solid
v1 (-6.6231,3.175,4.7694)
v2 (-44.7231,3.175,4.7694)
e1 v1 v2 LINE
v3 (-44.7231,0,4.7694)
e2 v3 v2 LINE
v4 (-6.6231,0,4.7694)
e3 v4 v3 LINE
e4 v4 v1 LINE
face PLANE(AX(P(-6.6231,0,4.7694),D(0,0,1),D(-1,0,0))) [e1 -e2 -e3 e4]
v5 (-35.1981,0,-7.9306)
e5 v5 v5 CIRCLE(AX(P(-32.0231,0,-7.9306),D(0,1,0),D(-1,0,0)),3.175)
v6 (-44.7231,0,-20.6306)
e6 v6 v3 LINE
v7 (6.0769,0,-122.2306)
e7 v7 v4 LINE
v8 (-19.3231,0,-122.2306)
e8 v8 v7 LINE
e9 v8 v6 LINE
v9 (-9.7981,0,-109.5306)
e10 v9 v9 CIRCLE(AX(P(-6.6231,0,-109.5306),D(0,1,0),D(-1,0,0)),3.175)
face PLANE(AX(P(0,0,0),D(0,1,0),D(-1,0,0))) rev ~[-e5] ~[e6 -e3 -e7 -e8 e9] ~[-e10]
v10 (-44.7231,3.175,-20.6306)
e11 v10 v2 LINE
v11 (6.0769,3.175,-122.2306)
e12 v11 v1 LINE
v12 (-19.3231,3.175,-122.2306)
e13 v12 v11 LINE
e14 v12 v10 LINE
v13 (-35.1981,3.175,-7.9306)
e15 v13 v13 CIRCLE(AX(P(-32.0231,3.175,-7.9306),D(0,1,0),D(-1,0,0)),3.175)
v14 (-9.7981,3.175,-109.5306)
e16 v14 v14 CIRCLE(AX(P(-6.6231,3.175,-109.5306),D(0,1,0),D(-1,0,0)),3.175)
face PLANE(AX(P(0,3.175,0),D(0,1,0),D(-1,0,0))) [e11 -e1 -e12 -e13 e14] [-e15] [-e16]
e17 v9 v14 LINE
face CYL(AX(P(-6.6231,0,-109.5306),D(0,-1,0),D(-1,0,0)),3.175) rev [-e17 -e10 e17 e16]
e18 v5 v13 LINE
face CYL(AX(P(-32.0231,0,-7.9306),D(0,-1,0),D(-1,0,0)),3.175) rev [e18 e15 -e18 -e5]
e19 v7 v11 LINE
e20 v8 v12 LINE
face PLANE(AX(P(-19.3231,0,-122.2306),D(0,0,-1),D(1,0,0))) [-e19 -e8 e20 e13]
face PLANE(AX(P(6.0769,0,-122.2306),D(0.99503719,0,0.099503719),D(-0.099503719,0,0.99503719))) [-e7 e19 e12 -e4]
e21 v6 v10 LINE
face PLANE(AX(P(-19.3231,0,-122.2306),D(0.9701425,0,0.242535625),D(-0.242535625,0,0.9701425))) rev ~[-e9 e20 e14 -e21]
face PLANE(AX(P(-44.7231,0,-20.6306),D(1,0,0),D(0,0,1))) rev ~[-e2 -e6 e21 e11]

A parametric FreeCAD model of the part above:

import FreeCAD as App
import Part
import Sketcher
from FreeCAD import Vector
Q = App.Units.Quantity

doc = App.newDocument("Part")
params = doc.addObject("Spreadsheet::Sheet", "Params")
for row, (alias, value) in enumerate([
    ("sketch1_diameter", "0.25 in"),
    ("sketch1_width", "1 in"),
    ("sketch1_width2", "1.5 in"),
    ("pad1_length", "0.125 in"),
], start=1):
    params.set(f"A{row}", alias)
    params.set(f"B{row}", "=" + value)
    params.setAlias(f"B{row}", alias)

body = doc.addObject("PartDesign::Body", "Body")

# Sketch on XZ plane
sketch1 = doc.addObject("Sketcher::SketchObject", "Sketch")
body.addObject(sketch1)
sketch1.AttachmentSupport = (doc.XZ_Plane, [""])
sketch1.MapMode = "FlatFace"
sketch1.addGeometry([
    Part.LineSegment(Vector(6.1, -122.2, 0), Vector(-19.3, -122.2, 0)),  # 0
    Part.LineSegment(Vector(-19.3, -122.2, 0), Vector(-44.7, -20.6, 0)),  # 1
    Part.LineSegment(Vector(-44.7, -20.6, 0), Vector(-44.7, 4.8, 0)),  # 2
    Part.LineSegment(Vector(-44.7, 4.8, 0), Vector(-6.6, 4.8, 0)),  # 3
    Part.LineSegment(Vector(-6.6, 4.8, 0), Vector(6.1, -122.2, 0)),  # 4
    Part.Circle(Vector(-6.6, -109.5, 0), Vector(0, 0, 1), 3.2),  # 5
    Part.Circle(Vector(-32, -7.9, 0), Vector(0, 0, 1), 3.2),  # 6
], False)
sketch1.addConstraint([
    Sketcher.Constraint("Coincident", 0, 2, 1, 1),
    Sketcher.Constraint("Coincident", 1, 2, 2, 1),
    Sketcher.Constraint("Coincident", 2, 2, 3, 1),
    Sketcher.Constraint("Coincident", 3, 2, 4, 1),
    Sketcher.Constraint("Coincident", 4, 2, 0, 1),
    Sketcher.Constraint("Horizontal", 0),
    Sketcher.Constraint("Vertical", 2),
    Sketcher.Constraint("Horizontal", 3),
    Sketcher.Constraint("Equal", 5, 6),
    Sketcher.Constraint("Vertical", 5, 3, 3, 2),
    Sketcher.Constraint("Equal", 0, 2),
    Sketcher.Constraint("Diameter", 5, Q("0.25 in")),
    Sketcher.Constraint("DistanceX", 0, 2, 0, 1, Q("1 in")),
    Sketcher.Constraint("DistanceX", 3, 1, 3, 2, Q("1.5 in")),
    Sketcher.Constraint("DistanceX", 6, 3, 5, 3, Q("1 in")),
    Sketcher.Constraint("DistanceX", 1, 2, 0, 2, Q("1 in")),
    Sketcher.Constraint("DistanceY", 0, 2, 2, 2, Q("5 in")),
    Sketcher.Constraint("DistanceY", 0, 2, 5, 3, Q("0.5 in")),
    Sketcher.Constraint("DistanceY", 1, 2, 6, 3, Q("0.5 in")),
    Sketcher.Constraint("DistanceX", 5, 3, -1, 1, Q("6.623 mm")),
    Sketcher.Constraint("DistanceY", 5, 3, -1, 1, Q("109.5306 mm")),
])
sketch1.setExpression("Constraints[11]", "Params.sketch1_diameter")
sketch1.setExpression("Constraints[12]", "Params.sketch1_width")
sketch1.setExpression("Constraints[13]", "Params.sketch1_width2")
pad1 = doc.addObject("PartDesign::Pad", "Pad")
body.addObject(pad1)
pad1.Profile = sketch1
pad1.setExpression("Length", "Params.pad1_length")
pad1.Reversed = True

doc.recompute()
